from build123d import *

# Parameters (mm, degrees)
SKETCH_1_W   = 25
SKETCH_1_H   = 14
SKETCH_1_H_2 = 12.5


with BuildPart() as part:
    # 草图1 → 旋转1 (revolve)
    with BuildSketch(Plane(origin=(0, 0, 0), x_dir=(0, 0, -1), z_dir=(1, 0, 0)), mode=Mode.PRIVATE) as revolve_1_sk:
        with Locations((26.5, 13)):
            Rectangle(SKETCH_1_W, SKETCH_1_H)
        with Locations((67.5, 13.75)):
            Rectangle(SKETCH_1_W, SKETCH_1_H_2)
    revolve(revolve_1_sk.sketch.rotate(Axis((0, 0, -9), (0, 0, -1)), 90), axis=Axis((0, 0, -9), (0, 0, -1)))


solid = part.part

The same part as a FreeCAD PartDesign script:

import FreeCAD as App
import Part
import Sketcher

V = App.Vector


def add_polygon(sketch, points):
    """Adds a closed chain of lines whose ends are joined by coincident constraints."""
    first, n = sketch.GeometryCount, len(points)
    for a, b in zip(points, points[1:] + points[:1]):
        sketch.addGeometry(Part.LineSegment(App.Vector(*a, 0), App.Vector(*b, 0)), False)
    for i in range(n):
        sketch.addConstraint(Sketcher.Constraint("Coincident", first + i, 2, first + (i + 1) % n, 1))

doc = App.newDocument("Part")
body = doc.addObject("PartDesign::Body", "Body")
body.AllowCompound = True

# Sketch on YZ plane
sketch1 = body.newObject("Sketcher::SketchObject", "Sketch")
sketch1.AttachmentSupport = (doc.getObject("YZ_Plane"), [""])
sketch1.MapMode = "FlatFace"
add_polygon(sketch1, [(20, -14), (6, -14), (6, -39), (20, -39)])  # lines 0-3
add_polygon(sketch1, [(20, -55), (7.5, -55), (7.5, -80), (20, -80)])  # lines 4-7
sketch1.addConstraint(Sketcher.Constraint("Horizontal", 0))
sketch1.addConstraint(Sketcher.Constraint("Vertical", 1))
sketch1.addConstraint(Sketcher.Constraint("Horizontal", 2))
sketch1.addConstraint(Sketcher.Constraint("Vertical", 3))
sketch1.addConstraint(Sketcher.Constraint("Horizontal", 4))
sketch1.addConstraint(Sketcher.Constraint("Vertical", 5))
sketch1.addConstraint(Sketcher.Constraint("Horizontal", 6))
sketch1.addConstraint(Sketcher.Constraint("Vertical", 7))
sketch1.addConstraint(Sketcher.Constraint("Vertical", 3, 2, 6, 2))
sketch1.addConstraint(Sketcher.Constraint("Equal", 3, 5))
sketch1.addConstraint(Sketcher.Constraint("DistanceX", 0, 2, 0, 1, 14.0))
sketch1.addConstraint(Sketcher.Constraint("DistanceY", 1, 2, 1, 1, 25.0))
sketch1.addConstraint(Sketcher.Constraint("DistanceX", 4, 2, 4, 1, 12.5))
sketch1.addConstraint(Sketcher.Constraint("DistanceX", -1, 1, 0, 2, 6.0))
sketch1.addConstraint(Sketcher.Constraint("DistanceY", 0, 2, -1, 1, 14.0))
sketch1.addConstraint(Sketcher.Constraint("DistanceY", 4, 2, -1, 1, 55.0))
revolution = body.newObject("PartDesign::Revolution", "Revolution")
revolution.Profile = sketch1
revolution.ReferenceAxis = (sketch1, ["V_Axis"])
revolution.Angle = 360

doc.recompute()
